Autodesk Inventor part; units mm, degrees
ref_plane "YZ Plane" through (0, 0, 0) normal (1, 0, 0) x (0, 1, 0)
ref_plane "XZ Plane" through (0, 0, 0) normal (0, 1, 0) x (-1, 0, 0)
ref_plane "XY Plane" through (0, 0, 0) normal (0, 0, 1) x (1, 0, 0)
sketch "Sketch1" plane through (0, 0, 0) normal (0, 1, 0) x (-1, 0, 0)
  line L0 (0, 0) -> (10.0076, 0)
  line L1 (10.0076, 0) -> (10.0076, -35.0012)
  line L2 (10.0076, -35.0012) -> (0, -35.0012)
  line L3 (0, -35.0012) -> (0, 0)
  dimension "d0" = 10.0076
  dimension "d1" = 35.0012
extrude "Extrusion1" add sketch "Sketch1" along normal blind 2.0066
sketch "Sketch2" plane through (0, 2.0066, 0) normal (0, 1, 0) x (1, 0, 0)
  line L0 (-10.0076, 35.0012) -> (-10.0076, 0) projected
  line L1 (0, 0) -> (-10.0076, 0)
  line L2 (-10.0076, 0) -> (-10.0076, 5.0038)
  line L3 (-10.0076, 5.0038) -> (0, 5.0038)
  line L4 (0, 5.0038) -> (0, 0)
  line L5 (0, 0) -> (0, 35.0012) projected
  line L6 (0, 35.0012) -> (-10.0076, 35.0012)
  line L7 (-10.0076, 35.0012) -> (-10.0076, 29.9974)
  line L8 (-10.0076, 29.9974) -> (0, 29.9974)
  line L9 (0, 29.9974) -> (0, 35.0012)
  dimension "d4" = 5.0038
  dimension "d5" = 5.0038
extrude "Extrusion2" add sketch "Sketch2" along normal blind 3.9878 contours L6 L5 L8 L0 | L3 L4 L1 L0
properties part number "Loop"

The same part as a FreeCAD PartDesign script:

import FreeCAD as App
import Part
import Sketcher
from FreeCAD import Vector
Q = App.Units.Quantity


def add_polygon(sketch, points):
    """Adds a closed chain of lines whose ends are joined by coincident constraints."""
    first, n = sketch.GeometryCount, len(points)
    for a, b in zip(points, points[1:] + points[:1]):
        sketch.addGeometry(Part.LineSegment(App.Vector(*a, 0), App.Vector(*b, 0)), False)
    for i in range(n):
        sketch.addConstraint(Sketcher.Constraint("Coincident", first + i, 2, first + (i + 1) % n, 1))

doc = App.newDocument("Part")
params = doc.addObject("Spreadsheet::Sheet", "Params")
for row, (alias, value) in enumerate([
    ("sketch1_width", "0.394 in"),
    ("sketch1_height", "1.378 in"),
    ("pad1_length", "0.079 in"),
    ("sketch2_height", "0.197 in"),
    ("sketch2_width", "0.394 in"),
    ("pad2_length", "0.157 in"),
], start=1):
    params.set(f"A{row}", alias)
    params.set(f"B{row}", "=" + value)
    params.setAlias(f"B{row}", alias)

body = doc.addObject("PartDesign::Body", "Body")

# Sketch on XZ plane
sketch1 = doc.addObject("Sketcher::SketchObject", "Sketch")
body.addObject(sketch1)
sketch1.AttachmentSupport = (doc.XZ_Plane, [""])
sketch1.MapMode = "FlatFace"
add_polygon(sketch1, [(-10, 0), (0, 0), (0, -35), (-10, -35)])  # lines 0-3
sketch1.addConstraint([
    Sketcher.Constraint("Horizontal", 0),
    Sketcher.Constraint("Vertical", 1),
    Sketcher.Constraint("Horizontal", 2),
    Sketcher.Constraint("Vertical", 3),
    Sketcher.Constraint("Coincident", 0, 2, -1, 1),
    Sketcher.Constraint("DistanceX", 0, 1, 0, 2, Q("0.394 in")),
    Sketcher.Constraint("DistanceY", 1, 2, 1, 1, Q("1.378 in")),
])
sketch1.setExpression("Constraints[9]", "Params.sketch1_width")
sketch1.setExpression("Constraints[10]", "Params.sketch1_height")
pad1 = doc.addObject("PartDesign::Pad", "Pad")
body.addObject(pad1)
pad1.Profile = sketch1
pad1.setExpression("Length", "Params.pad1_length")
pad1.Reversed = True

# Sketch on XZ plane
sketch2 = doc.addObject("Sketcher::SketchObject", "Sketch001")
body.addObject(sketch2)
sketch2.AttachmentSupport = (doc.XZ_Plane, [""])
sketch2.MapMode = "FlatFace"
sketch2.AttachmentOffset = App.Placement(Vector(0, 0, -0.079 * 25.4), App.Rotation())
add_polygon(sketch2, [(0, -35), (-10, -35), (-10, -30), (0, -30)])  # lines 0-3
add_polygon(sketch2, [(0, -5), (-10, -5), (-10, 0), (0, 0)])  # lines 4-7
sketch2.addConstraint([
    Sketcher.Constraint("Horizontal", 0),
    Sketcher.Constraint("Vertical", 1),
    Sketcher.Constraint("Horizontal", 2),
    Sketcher.Constraint("Vertical", 3),
    Sketcher.Constraint("Horizontal", 4),
    Sketcher.Constraint("Vertical", 5),
    Sketcher.Constraint("Horizontal", 6),
    Sketcher.Constraint("Vertical", 7),
    Sketcher.Constraint("Coincident", 6, 2, -1, 1),
    Sketcher.Constraint("PointOnObject", 2, 2, -2),
    Sketcher.Constraint("Vertical", 1, 2, 4, 2),
    Sketcher.Constraint("Equal", 3, 5),
    Sketcher.Constraint("DistanceY", 1, 1, 1, 2, Q("0.197 in")),
    Sketcher.Constraint("DistanceX", 0, 2, 0, 1, Q("0.394 in")),
    Sketcher.Constraint("DistanceY", 0, 2, -1, 1, Q("1.378 in")),
])
sketch2.setExpression("Constraints[20]", "Params.sketch2_height")
sketch2.setExpression("Constraints[21]", "Params.sketch2_width")
pad2 = doc.addObject("PartDesign::Pad", "Pad001")
body.addObject(pad2)
pad2.Profile = sketch2
pad2.setExpression("Length", "Params.pad2_length")
pad2.Reversed = True

doc.recompute()
